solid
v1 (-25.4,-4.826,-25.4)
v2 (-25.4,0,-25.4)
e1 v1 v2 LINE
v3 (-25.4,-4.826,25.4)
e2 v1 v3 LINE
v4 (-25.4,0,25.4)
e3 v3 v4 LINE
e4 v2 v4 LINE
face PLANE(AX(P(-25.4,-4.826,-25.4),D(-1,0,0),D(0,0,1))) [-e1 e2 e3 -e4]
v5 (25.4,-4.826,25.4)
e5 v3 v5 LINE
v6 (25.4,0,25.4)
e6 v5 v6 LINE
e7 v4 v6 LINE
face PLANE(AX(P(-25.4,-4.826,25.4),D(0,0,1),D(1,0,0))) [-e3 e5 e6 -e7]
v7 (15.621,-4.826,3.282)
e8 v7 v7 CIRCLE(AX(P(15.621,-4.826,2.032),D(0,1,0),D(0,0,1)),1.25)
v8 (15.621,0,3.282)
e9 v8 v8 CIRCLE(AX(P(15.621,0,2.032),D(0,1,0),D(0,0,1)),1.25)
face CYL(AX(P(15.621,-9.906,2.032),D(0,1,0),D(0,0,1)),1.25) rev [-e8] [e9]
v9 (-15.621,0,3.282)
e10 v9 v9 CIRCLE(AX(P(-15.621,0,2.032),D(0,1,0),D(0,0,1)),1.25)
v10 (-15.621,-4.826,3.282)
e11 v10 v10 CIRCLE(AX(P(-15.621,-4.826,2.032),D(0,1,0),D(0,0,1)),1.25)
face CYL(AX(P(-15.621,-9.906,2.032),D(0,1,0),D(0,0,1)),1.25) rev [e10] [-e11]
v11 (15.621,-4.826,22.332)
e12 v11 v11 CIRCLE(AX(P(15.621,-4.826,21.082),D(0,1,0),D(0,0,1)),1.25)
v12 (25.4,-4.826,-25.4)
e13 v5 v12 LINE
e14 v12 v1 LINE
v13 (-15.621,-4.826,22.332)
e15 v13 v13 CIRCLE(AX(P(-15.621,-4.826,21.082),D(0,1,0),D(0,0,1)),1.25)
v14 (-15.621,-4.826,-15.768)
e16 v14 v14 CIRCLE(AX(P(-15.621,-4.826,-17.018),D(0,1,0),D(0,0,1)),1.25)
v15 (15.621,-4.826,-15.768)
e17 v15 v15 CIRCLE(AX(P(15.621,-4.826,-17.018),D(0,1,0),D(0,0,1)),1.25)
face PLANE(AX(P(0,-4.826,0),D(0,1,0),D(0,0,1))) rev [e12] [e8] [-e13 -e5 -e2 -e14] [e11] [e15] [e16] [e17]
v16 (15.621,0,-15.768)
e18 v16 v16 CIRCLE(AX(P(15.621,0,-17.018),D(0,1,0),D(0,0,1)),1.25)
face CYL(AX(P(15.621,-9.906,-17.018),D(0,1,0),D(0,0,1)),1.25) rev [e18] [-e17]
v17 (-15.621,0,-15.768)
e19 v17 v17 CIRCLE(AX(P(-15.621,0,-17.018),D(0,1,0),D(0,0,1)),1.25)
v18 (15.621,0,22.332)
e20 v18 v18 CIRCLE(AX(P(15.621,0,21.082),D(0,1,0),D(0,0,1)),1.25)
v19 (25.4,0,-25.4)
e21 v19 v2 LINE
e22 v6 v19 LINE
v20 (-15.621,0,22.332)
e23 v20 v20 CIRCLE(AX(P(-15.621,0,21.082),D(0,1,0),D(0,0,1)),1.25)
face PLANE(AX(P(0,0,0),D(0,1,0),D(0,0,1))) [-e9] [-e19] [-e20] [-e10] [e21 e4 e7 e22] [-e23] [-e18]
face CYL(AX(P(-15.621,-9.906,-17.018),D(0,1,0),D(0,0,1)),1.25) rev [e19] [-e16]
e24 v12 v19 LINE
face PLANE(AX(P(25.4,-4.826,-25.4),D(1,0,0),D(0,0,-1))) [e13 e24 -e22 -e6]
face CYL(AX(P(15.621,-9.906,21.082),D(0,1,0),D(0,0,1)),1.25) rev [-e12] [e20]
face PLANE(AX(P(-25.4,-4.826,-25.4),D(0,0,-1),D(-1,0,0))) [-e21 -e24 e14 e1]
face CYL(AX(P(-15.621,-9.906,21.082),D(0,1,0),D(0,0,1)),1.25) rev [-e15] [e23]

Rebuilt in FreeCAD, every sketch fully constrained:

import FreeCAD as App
import Part
import Sketcher
from FreeCAD import Vector
Q = App.Units.Quantity


def add_polygon(sketch, points):
    """Adds a closed chain of lines whose ends are joined by coincident constraints."""
    first, n = sketch.GeometryCount, len(points)
    for a, b in zip(points, points[1:] + points[:1]):
        sketch.addGeometry(Part.LineSegment(App.Vector(*a, 0), App.Vector(*b, 0)), False)
    for i in range(n):
        sketch.addConstraint(Sketcher.Constraint("Coincident", first + i, 2, first + (i + 1) % n, 1))

doc = App.newDocument("Part")
params = doc.addObject("Spreadsheet::Sheet", "Params")
for row, (alias, value) in enumerate([
    ("sketch1_width", "2 in"),
    ("pad1_length", "0.19 in"),
    ("pocket1_length", "0.39 in"),
    ("linearpattern_pitch", "0.75 in"),
], start=1):
    params.set(f"A{row}", alias)
    params.set(f"B{row}", "=" + value)
    params.setAlias(f"B{row}", alias)

body = doc.addObject("PartDesign::Body", "Body")

# Sketch on XZ plane
sketch1 = body.newObject("Sketcher::SketchObject", "Sketch")
sketch1.AttachmentSupport = (doc.getObject("XZ_Plane"), [""])
sketch1.MapMode = "FlatFace"
add_polygon(sketch1, [(-25, -25), (-25, 25), (25, 25), (25, -25)])  # lines 0-3
sketch1.addConstraint([
    Sketcher.Constraint("Vertical", 0),
    Sketcher.Constraint("Horizontal", 1),
    Sketcher.Constraint("Vertical", 2),
    Sketcher.Constraint("Horizontal", 3),
    Sketcher.Constraint("Symmetric", 0, 2, 2, 2, -1, 1),
    Sketcher.Constraint("Equal", 3, 0),
    Sketcher.Constraint("DistanceX", 1, 1, 1, 2, Q("2 in")),
])
sketch1.setExpression("Constraints[10]", "Params.sketch1_width")
pad1 = body.newObject("PartDesign::Pad", "Pad")
pad1.Profile = sketch1
pad1.setExpression("Length", "Params.pad1_length")

# Sketch on XZ plane
sketch2 = body.newObject("Sketcher::SketchObject", "Sketch001")
sketch2.AttachmentSupport = (doc.getObject("XZ_Plane"), [""])
sketch2.MapMode = "FlatFace"
sketch2.addGeometry([
    Part.Circle(Vector(-15.6, -17, 0), Vector(0, 0, 1), 1.2),
    Part.Circle(Vector(15.6, -17, 0), Vector(0, 0, 1), 1.2),
], False)
sketch2.addConstraint([
    Sketcher.Constraint("Equal", 0, 1),
    Sketcher.Constraint("Symmetric", 0, 3, 1, 3, -2),
    Sketcher.Constraint("Diameter", 0, 2.5),
    Sketcher.Constraint("DistanceY", 0, 3, -1, 1, Q("0.67 in")),
    Sketcher.Constraint("DistanceX", 0, 3, 1, 3, Q("1.23 in")),
])
pocket1 = body.newObject("PartDesign::Pocket", "Pocket")
pocket1.Profile = sketch2
pocket1.setExpression("Length", "Params.pocket1_length")
pocket1.Reversed = True
doc.recompute()

linearpattern = body.newObject("PartDesign::LinearPattern", "LinearPattern")
linearpattern.Originals = [pocket1]
linearpattern.Direction = (doc.getObject("Z_Axis"), [""])
linearpattern.Mode = "offset"
linearpattern.setExpression("Offset", "Params.linearpattern_pitch")
linearpattern.Occurrences = 3
body.Tip = linearpattern

doc.recompute()
